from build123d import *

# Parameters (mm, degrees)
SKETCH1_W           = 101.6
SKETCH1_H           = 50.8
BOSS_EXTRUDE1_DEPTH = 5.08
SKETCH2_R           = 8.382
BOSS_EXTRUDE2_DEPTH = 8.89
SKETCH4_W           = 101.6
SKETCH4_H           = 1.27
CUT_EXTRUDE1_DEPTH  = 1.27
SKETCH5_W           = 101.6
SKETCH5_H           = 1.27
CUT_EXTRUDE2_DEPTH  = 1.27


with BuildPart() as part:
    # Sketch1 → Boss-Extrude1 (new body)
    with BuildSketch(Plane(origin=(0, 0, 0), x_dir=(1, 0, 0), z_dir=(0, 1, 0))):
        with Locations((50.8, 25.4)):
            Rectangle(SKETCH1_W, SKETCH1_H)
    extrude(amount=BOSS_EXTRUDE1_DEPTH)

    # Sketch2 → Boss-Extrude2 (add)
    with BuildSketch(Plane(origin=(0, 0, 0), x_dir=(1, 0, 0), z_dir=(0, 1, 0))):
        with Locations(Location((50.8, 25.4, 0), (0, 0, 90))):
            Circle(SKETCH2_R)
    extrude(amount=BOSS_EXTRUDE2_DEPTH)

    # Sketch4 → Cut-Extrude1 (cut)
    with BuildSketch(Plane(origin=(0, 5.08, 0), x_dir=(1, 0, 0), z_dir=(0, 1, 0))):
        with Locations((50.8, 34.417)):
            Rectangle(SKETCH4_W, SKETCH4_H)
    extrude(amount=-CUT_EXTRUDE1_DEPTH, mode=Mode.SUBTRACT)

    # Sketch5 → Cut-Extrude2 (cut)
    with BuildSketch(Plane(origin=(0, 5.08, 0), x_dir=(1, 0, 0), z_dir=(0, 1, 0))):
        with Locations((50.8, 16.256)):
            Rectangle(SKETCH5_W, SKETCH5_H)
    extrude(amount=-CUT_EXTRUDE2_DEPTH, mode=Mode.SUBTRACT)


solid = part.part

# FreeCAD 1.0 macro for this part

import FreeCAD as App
import Part
import Sketcher
from FreeCAD import Vector
Q = App.Units.Quantity

doc = App.newDocument("Part")
body = doc.addObject("PartDesign::Body", "Body")

# Sketch on XZ plane
sketch1 = body.newObject("Sketcher::SketchObject", "Sketch")
sketch1.AttachmentSupport = (doc.getObject("XZ_Plane"), [""])
sketch1.MapMode = "FlatFace"
sketch1.addGeometry([
    Part.LineSegment(Vector(0, -50.8, 0), Vector(0, 0, 0)),
    Part.LineSegment(Vector(0, 0, 0), Vector(101.6, 0, 0)),
    Part.LineSegment(Vector(101.6, 0, 0), Vector(101.6, -50.8, 0)),
    Part.LineSegment(Vector(101.6, -50.8, 0), Vector(0, -50.8, 0)),
], False)
sketch1.addConstraint([
    Sketcher.Constraint("Coincident", 0, 2, 1, 1),
    Sketcher.Constraint("Coincident", 1, 2, 2, 1),
    Sketcher.Constraint("Coincident", 2, 2, 3, 1),
    Sketcher.Constraint("Coincident", 3, 2, 0, 1),
    Sketcher.Constraint("Vertical", 0),
    Sketcher.Constraint("Horizontal", 1),
    Sketcher.Constraint("Vertical", 2),
    Sketcher.Constraint("Horizontal", 3),
    Sketcher.Constraint("Coincident", 0, 2, -1, 1),
    Sketcher.Constraint("DistanceX", 1, 1, 1, 2, Q("4 in")),
    Sketcher.Constraint("DistanceY", 0, 1, 0, 2, Q("2 in")),
])
pad1 = body.newObject("PartDesign::Pad", "Pad")
pad1.Profile = sketch1
pad1.Length = Q("0.2 in")
pad1.Reversed = True

# Sketch on XZ plane
sketch2 = body.newObject("Sketcher::SketchObject", "Sketch001")
sketch2.AttachmentSupport = (doc.getObject("XZ_Plane"), [""])
sketch2.MapMode = "FlatFace"
sketch2.addGeometry(Part.Circle(Vector(50.8, -25.4, 0), Vector(0, 0, 1), 8.382), False)
sketch2.addConstraint([
    Sketcher.Constraint("Diameter", 0, Q("0.66 in")),
    Sketcher.Constraint("DistanceX", -1, 1, 0, 3, Q("2 in")),
    Sketcher.Constraint("DistanceY", 0, 3, -1, 1, Q("1 in")),
])
pad2 = body.newObject("PartDesign::Pad", "Pad001")
pad2.Profile = sketch2
pad2.Length = Q("0.35 in")
pad2.Reversed = True

# Sketch on XZ plane
sketch3 = body.newObject("Sketcher::SketchObject", "Sketch002")
sketch3.AttachmentSupport = (doc.getObject("XZ_Plane"), [""])
sketch3.MapMode = "FlatFace"
sketch3.AttachmentOffset = App.Placement(Vector(0, 0, -0.2 * 25.4), App.Rotation())
sketch3.addGeometry([
    Part.LineSegment(Vector(0, -35.052, 0), Vector(0, -33.782, 0)),
    Part.LineSegment(Vector(0, -33.782, 0), Vector(101.6, -33.782, 0)),
    Part.LineSegment(Vector(101.6, -33.782, 0), Vector(101.6, -35.052, 0)),
    Part.LineSegment(Vector(101.6, -35.052, 0), Vector(0, -35.052, 0)),
], False)
sketch3.addConstraint([
    Sketcher.Constraint("Coincident", 0, 2, 1, 1),
    Sketcher.Constraint("Coincident", 1, 2, 2, 1),
    Sketcher.Constraint("Coincident", 2, 2, 3, 1),
    Sketcher.Constraint("Coincident", 3, 2, 0, 1),
    Sketcher.Constraint("Vertical", 0),
    Sketcher.Constraint("Horizontal", 1),
    Sketcher.Constraint("Vertical", 2),
    Sketcher.Constraint("Horizontal", 3),
    Sketcher.Constraint("PointOnObject", 0, 2, -2),
    Sketcher.Constraint("DistanceX", 1, 1, 1, 2, Q("4 in")),
    Sketcher.Constraint("DistanceY", 0, 1, 0, 2, Q("0.05 in")),
    Sketcher.Constraint("DistanceY", 0, 2, -1, 1, Q("1.33 in")),
])
pocket1 = body.newObject("PartDesign::Pocket", "Pocket")
pocket1.Profile = sketch3
pocket1.Length = Q("0.05 in")
pocket1.Reversed = True

# Sketch on XZ plane
sketch4 = body.newObject("Sketcher::SketchObject", "Sketch003")
sketch4.AttachmentSupport = (doc.getObject("XZ_Plane"), [""])
sketch4.MapMode = "FlatFace"
sketch4.AttachmentOffset = App.Placement(Vector(0, 0, -0.2 * 25.4), App.Rotation())
sketch4.addGeometry([
    Part.LineSegment(Vector(0, -16.891, 0), Vector(0, -15.621, 0)),
    Part.LineSegment(Vector(0, -15.621, 0), Vector(101.6, -15.621, 0)),
    Part.LineSegment(Vector(101.6, -15.621, 0), Vector(101.6, -16.891, 0)),
    Part.LineSegment(Vector(101.6, -16.891, 0), Vector(0, -16.891, 0)),
], False)
sketch4.addConstraint([
    Sketcher.Constraint("Coincident", 0, 2, 1, 1),
    Sketcher.Constraint("Coincident", 1, 2, 2, 1),
    Sketcher.Constraint("Coincident", 2, 2, 3, 1),
    Sketcher.Constraint("Coincident", 3, 2, 0, 1),
    Sketcher.Constraint("Vertical", 0),
    Sketcher.Constraint("Horizontal", 1),
    Sketcher.Constraint("Vertical", 2),
    Sketcher.Constraint("Horizontal", 3),
    Sketcher.Constraint("PointOnObject", 0, 2, -2),
    Sketcher.Constraint("DistanceX", 1, 1, 1, 2, Q("4 in")),
    Sketcher.Constraint("DistanceY", 0, 1, 0, 2, Q("0.05 in")),
    Sketcher.Constraint("DistanceY", 0, 2, -1, 1, Q("0.615 in")),
])
pocket2 = body.newObject("PartDesign::Pocket", "Pocket001")
pocket2.Profile = sketch4
pocket2.Length = Q("0.05 in")
pocket2.Reversed = True

doc.recompute()
